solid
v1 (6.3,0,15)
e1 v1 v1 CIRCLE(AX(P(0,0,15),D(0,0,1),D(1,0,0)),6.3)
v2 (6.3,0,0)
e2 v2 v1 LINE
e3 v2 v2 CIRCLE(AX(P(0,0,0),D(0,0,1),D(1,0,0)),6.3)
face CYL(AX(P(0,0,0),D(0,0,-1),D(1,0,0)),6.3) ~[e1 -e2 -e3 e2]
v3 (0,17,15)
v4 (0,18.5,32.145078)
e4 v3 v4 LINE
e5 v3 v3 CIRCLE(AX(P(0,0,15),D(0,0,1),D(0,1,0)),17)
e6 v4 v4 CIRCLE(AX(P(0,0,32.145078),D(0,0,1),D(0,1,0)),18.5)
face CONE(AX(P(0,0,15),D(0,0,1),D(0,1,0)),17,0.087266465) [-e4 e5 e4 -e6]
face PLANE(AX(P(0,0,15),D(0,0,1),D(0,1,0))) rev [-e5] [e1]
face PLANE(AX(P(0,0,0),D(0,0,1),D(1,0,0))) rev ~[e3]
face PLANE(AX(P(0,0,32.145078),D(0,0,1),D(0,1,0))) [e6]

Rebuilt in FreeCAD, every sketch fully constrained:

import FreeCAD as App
import Part
import Sketcher
from FreeCAD import Vector
Q = App.Units.Quantity

doc = App.newDocument("Part")
body = doc.addObject("PartDesign::Body", "Body")

# Sketch on XY plane
sketch1 = body.newObject("Sketcher::SketchObject", "Sketch")
sketch1.AttachmentSupport = (doc.getObject("XY_Plane"), [""])
sketch1.MapMode = "FlatFace"
sketch1.addGeometry(Part.Circle(Vector(0, 0, 0), Vector(0, 0, 1), 6), False)
sketch1.addConstraint(Sketcher.Constraint("Coincident", 0, 3, -1, 1))
sketch1.addConstraint(Sketcher.Constraint("Diameter", 0, 12.6))
pad1 = body.newObject("PartDesign::Pad", "Pad")
pad1.Profile = sketch1
pad1.Length = 15

# Sketch on YZ plane
sketch2 = body.newObject("Sketcher::SketchObject", "Sketch001")
sketch2.AttachmentSupport = (doc.getObject("YZ_Plane"), [""])
sketch2.MapMode = "FlatFace"
sketch2.addGeometry(Part.LineSegment(Vector(0, 32, 0), Vector(0, 15, 0)), False)
sketch2.addGeometry(Part.LineSegment(Vector(0, 15, 0), Vector(17, 15, 0)), False)
sketch2.addGeometry(Part.LineSegment(Vector(17, 15, 0), Vector(18, 32, 0)), False)
sketch2.addGeometry(Part.LineSegment(Vector(18, 32, 0), Vector(0, 32, 0)), False)
sketch2.addConstraint(Sketcher.Constraint("Coincident", 0, 2, 1, 1))
sketch2.addConstraint(Sketcher.Constraint("Coincident", 1, 2, 2, 1))
sketch2.addConstraint(Sketcher.Constraint("Coincident", 2, 2, 3, 1))
sketch2.addConstraint(Sketcher.Constraint("Coincident", 3, 2, 0, 1))
sketch2.addConstraint(Sketcher.Constraint("Vertical", 0))
sketch2.addConstraint(Sketcher.Constraint("Horizontal", 1))
sketch2.addConstraint(Sketcher.Constraint("Horizontal", 3))
sketch2.addConstraint(Sketcher.Constraint("PointOnObject", 0, 2, -2))
sketch2.addConstraint(Sketcher.Constraint("DistanceX", 1, 1, 1, 2, 17.0))
sketch2.addConstraint(Sketcher.Constraint("Angle", 2, Q("85 deg")))
sketch2.addConstraint(Sketcher.Constraint("DistanceX", 3, 2, 3, 1, 18.5))
sketch2.addConstraint(Sketcher.Constraint("DistanceY", -1, 1, 0, 2, 15.0))
revolution = body.newObject("PartDesign::Revolution", "Revolution")
revolution.Profile = sketch2
revolution.ReferenceAxis = (sketch2, ["V_Axis"])
revolution.Angle = 360

doc.recompute()
